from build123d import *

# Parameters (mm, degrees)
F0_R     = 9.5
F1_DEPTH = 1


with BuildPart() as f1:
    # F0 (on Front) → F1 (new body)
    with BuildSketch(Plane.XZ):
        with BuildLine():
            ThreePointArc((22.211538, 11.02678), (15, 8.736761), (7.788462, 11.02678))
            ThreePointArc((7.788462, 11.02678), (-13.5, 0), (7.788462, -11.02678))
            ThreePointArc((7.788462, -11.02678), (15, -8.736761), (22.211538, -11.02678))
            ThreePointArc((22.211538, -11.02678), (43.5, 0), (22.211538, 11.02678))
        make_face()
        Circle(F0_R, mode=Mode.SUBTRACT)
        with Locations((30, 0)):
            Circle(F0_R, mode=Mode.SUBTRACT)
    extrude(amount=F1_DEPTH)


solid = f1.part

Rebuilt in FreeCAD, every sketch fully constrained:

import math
import FreeCAD as App
import Part
import Sketcher
from FreeCAD import Vector

doc = App.newDocument("Part")
body = doc.addObject("PartDesign::Body", "Body")

# Sketch on XZ plane
sketch1 = body.newObject("Sketcher::SketchObject", "Sketch")
sketch1.AttachmentSupport = (doc.getObject("XZ_Plane"), [""])
sketch1.MapMode = "FlatFace"
sketch1.addGeometry(Part.ArcOfCircle(Part.Circle(Vector(15, 21, 0), Vector(0, 0, 1), 12), math.radians(-125), math.radians(-55)), False)
sketch1.addGeometry(Part.ArcOfCircle(Part.Circle(Vector(0, 0, 0), Vector(0, 0, 1), 14), math.radians(55), math.radians(305)), False)
sketch1.addGeometry(Part.ArcOfCircle(Part.Circle(Vector(15, -21, 0), Vector(0, 0, 1), 12), math.radians(55), math.radians(125)), False)
sketch1.addGeometry(Part.ArcOfCircle(Part.Circle(Vector(30, 0, 0), Vector(0, 0, 1), 14), math.radians(-125), math.radians(125)), False)
sketch1.addGeometry(Part.Circle(Vector(0, 0, 0), Vector(0, 0, 1), 10), False)
sketch1.addGeometry(Part.Circle(Vector(30, 0, 0), Vector(0, 0, 1), 10), False)
sketch1.addConstraint(Sketcher.Constraint("Tangent", 0, 1, 1, 1))
sketch1.addConstraint(Sketcher.Constraint("Tangent", 1, 2, 2, 2))
sketch1.addConstraint(Sketcher.Constraint("Tangent", 2, 1, 3, 1))
sketch1.addConstraint(Sketcher.Constraint("Tangent", 3, 2, 0, 2))
sketch1.addConstraint(Sketcher.Constraint("Coincident", 1, 3, -1, 1))
sketch1.addConstraint(Sketcher.Constraint("Coincident", 4, 3, -1, 1))
sketch1.addConstraint(Sketcher.Constraint("Coincident", 5, 3, 3, 3))
sketch1.addConstraint(Sketcher.Constraint("Equal", 0, 2))
sketch1.addConstraint(Sketcher.Constraint("Equal", 1, 3))
sketch1.addConstraint(Sketcher.Constraint("Equal", 4, 5))
sketch1.addConstraint(Sketcher.Constraint("PointOnObject", 3, 3, -1))
sketch1.addConstraint(Sketcher.Constraint("Diameter", 4, 19.0))
sketch1.addConstraint(Sketcher.Constraint("Radius", 0, 12.499998))
sketch1.addConstraint(Sketcher.Constraint("Radius", 1, 13.5))
sketch1.addConstraint(Sketcher.Constraint("DistanceX", -1, 1, 0, 3, 15.0))
pad1 = body.newObject("PartDesign::Pad", "Pad")
pad1.Profile = sketch1
pad1.Length = 1

doc.recompute()
